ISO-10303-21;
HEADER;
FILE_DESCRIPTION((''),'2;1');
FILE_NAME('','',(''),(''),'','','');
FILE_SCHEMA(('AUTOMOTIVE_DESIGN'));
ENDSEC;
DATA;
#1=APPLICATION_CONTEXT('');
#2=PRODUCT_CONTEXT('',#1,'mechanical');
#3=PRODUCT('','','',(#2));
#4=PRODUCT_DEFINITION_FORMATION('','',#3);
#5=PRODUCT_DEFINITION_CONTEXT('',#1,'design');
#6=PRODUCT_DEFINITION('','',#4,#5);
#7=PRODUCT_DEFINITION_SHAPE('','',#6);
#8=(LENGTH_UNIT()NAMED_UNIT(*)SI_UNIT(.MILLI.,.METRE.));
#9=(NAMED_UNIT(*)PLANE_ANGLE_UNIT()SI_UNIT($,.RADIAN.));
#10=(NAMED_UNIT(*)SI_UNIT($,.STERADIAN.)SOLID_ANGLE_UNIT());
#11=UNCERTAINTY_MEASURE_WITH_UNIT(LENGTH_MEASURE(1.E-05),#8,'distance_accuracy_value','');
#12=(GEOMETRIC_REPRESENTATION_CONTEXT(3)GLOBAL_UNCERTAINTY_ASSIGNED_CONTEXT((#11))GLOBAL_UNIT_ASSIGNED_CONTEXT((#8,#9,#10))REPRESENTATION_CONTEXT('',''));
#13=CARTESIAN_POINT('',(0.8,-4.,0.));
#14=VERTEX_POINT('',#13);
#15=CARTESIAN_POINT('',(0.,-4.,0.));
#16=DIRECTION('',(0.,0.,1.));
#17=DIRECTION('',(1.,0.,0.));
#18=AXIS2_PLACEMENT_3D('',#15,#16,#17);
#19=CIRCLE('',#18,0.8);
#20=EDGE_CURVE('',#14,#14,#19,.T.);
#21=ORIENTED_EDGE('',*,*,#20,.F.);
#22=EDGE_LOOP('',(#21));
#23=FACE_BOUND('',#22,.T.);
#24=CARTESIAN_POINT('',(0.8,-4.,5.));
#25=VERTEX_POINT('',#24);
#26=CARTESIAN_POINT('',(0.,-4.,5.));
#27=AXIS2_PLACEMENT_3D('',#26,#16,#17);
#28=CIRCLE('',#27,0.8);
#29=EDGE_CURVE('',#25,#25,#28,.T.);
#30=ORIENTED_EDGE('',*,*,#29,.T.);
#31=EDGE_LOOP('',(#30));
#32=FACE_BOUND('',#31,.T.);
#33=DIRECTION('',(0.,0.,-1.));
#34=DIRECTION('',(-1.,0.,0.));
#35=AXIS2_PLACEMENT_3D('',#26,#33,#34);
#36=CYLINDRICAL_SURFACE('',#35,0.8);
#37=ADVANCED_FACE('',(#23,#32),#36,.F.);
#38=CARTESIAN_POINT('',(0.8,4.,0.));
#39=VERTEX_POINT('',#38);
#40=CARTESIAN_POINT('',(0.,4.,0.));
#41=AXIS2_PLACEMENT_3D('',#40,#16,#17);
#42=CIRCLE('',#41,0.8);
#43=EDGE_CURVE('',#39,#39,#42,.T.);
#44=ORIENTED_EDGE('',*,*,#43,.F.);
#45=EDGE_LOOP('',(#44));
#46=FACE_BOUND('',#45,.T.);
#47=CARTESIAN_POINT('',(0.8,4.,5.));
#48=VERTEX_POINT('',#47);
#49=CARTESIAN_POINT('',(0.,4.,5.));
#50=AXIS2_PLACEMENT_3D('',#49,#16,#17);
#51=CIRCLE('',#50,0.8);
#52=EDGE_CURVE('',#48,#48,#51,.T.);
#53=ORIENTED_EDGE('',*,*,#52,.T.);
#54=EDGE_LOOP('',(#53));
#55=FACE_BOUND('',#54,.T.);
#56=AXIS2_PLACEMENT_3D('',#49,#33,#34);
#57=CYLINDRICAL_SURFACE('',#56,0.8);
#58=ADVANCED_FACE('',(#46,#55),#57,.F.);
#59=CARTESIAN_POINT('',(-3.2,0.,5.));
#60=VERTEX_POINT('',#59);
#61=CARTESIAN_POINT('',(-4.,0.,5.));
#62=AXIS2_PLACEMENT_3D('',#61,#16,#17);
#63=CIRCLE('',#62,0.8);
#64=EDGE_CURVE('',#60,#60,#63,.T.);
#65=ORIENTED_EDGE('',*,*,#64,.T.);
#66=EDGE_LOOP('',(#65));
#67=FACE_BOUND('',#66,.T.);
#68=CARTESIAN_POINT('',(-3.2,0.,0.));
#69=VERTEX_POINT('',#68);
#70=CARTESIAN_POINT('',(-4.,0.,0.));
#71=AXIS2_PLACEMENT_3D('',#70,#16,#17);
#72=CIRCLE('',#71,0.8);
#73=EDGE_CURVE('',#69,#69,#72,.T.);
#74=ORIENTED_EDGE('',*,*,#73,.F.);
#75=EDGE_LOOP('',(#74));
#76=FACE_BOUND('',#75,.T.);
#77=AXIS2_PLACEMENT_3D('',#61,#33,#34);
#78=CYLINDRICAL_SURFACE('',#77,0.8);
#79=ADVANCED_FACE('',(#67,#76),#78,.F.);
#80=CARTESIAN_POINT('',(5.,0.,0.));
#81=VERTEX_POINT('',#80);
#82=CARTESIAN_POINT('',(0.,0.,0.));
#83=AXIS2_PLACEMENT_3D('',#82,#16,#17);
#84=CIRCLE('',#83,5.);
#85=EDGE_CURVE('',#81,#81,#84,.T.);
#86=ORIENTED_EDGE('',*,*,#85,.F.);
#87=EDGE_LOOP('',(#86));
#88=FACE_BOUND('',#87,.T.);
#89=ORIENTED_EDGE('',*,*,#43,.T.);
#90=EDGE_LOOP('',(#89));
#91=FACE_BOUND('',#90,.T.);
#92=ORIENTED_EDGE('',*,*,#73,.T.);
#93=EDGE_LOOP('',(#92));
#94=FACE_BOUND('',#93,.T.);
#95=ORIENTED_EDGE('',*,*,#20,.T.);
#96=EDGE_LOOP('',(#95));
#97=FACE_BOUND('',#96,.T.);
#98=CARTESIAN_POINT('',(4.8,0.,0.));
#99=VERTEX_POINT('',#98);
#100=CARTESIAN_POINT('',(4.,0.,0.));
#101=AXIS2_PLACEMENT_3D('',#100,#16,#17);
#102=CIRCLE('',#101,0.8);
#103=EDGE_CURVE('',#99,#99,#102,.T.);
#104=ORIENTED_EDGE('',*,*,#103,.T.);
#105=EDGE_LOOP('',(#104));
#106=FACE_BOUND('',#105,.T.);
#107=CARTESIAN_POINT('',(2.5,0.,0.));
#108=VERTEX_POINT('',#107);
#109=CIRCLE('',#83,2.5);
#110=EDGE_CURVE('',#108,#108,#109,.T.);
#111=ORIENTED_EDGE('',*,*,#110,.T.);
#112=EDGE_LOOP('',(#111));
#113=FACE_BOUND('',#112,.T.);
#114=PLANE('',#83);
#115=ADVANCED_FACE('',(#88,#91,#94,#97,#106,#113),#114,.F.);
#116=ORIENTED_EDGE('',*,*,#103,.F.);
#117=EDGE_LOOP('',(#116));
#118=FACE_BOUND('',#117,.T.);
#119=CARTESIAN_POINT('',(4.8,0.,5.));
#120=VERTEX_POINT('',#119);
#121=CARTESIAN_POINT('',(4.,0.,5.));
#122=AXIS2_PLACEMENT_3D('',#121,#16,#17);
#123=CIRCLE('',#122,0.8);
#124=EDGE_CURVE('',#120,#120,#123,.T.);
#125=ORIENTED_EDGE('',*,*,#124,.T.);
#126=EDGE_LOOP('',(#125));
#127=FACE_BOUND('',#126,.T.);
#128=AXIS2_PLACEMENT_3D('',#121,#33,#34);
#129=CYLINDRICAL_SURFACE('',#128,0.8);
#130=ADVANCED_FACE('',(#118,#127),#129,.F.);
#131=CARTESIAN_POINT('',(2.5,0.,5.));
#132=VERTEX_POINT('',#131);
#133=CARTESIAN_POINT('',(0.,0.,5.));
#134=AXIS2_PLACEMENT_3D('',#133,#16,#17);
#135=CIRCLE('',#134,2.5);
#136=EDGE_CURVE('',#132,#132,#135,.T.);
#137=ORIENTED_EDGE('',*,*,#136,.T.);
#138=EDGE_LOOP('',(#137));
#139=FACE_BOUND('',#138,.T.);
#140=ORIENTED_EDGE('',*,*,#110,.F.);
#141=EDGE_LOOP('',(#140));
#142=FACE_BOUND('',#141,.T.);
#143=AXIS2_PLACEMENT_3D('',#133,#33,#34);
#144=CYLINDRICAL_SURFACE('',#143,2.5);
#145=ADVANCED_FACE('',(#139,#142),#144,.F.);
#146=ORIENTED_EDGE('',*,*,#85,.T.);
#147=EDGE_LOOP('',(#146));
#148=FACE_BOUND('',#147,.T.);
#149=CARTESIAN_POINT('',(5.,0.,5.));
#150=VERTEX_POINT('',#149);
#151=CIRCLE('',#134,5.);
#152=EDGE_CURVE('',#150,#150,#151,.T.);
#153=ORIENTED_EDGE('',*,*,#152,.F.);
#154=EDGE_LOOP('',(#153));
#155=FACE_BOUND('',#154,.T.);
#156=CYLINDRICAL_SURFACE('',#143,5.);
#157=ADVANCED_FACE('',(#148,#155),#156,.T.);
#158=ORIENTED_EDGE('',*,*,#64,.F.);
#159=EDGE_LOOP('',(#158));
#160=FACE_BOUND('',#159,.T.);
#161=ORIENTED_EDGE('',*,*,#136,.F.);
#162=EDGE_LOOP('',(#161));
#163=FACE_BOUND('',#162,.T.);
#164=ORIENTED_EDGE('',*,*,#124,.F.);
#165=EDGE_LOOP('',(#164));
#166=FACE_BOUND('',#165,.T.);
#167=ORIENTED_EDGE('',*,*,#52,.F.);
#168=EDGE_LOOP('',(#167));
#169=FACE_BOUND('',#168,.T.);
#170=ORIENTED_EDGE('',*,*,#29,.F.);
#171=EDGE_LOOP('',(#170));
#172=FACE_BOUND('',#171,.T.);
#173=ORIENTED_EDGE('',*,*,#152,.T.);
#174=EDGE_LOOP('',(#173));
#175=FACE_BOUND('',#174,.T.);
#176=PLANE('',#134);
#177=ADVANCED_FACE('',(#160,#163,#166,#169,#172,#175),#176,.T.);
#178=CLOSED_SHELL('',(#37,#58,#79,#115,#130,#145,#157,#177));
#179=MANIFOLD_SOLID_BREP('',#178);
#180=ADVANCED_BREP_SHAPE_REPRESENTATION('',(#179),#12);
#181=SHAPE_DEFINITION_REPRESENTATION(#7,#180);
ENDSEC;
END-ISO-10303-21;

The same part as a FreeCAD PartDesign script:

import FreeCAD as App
import Part
import Sketcher

V = App.Vector
Q = App.Units.Quantity

doc = App.newDocument("Part")
body = doc.addObject("PartDesign::Body", "Body")

# Sketch on XY plane
sketch1 = body.newObject("Sketcher::SketchObject", "Sketch")
sketch1.AttachmentSupport = (doc.getObject("XY_Plane"), [""])
sketch1.MapMode = "FlatFace"
sketch1.addGeometry([
    Part.Circle(V(0, 0, 0), V(0, 0, 1), 5),  # 0
    Part.Circle(V(0, -4, 0), V(0, 0, 1), 0.8),  # 1
    Part.Circle(V(0, 0, 0), V(0, 0, 1), 2.5),  # 2
    Part.Circle(V(-4, 0, 0), V(0, 0, 1), 0.8),  # 3
    Part.Circle(V(4, 0, 0), V(0, 0, 1), 0.8),  # 4
    Part.Circle(V(0, 4, 0), V(0, 0, 1), 0.8),  # 5
], False)
sketch1.addConstraint([
    Sketcher.Constraint("Coincident", 0, 3, -1, 1),
    Sketcher.Constraint("Coincident", 2, 3, -1, 1),
    Sketcher.Constraint("Equal", 1, 3),
    Sketcher.Constraint("Equal", 3, 4),
    Sketcher.Constraint("Equal", 4, 5),
    Sketcher.Constraint("Symmetric", 3, 3, 4, 3, -1, 1),
    Sketcher.Constraint("Symmetric", 1, 3, 5, 3, -1, 1),
    Sketcher.Constraint("PointOnObject", 1, 3, -2),
    Sketcher.Constraint("PointOnObject", 3, 3, -1),
    Sketcher.Constraint("Diameter", 0, Q("10 mm")),
    Sketcher.Constraint("Diameter", 2, Q("5 mm")),
    Sketcher.Constraint("Diameter", 1, Q("1.6 mm")),
    Sketcher.Constraint("DistanceY", 1, 3, -1, 1, Q("4 mm")),
    Sketcher.Constraint("DistanceX", 3, 3, -1, 1, Q("4 mm")),
])
pad1 = body.newObject("PartDesign::Pad", "Pad")
pad1.Profile = sketch1
pad1.Length = 5

doc.recompute()
